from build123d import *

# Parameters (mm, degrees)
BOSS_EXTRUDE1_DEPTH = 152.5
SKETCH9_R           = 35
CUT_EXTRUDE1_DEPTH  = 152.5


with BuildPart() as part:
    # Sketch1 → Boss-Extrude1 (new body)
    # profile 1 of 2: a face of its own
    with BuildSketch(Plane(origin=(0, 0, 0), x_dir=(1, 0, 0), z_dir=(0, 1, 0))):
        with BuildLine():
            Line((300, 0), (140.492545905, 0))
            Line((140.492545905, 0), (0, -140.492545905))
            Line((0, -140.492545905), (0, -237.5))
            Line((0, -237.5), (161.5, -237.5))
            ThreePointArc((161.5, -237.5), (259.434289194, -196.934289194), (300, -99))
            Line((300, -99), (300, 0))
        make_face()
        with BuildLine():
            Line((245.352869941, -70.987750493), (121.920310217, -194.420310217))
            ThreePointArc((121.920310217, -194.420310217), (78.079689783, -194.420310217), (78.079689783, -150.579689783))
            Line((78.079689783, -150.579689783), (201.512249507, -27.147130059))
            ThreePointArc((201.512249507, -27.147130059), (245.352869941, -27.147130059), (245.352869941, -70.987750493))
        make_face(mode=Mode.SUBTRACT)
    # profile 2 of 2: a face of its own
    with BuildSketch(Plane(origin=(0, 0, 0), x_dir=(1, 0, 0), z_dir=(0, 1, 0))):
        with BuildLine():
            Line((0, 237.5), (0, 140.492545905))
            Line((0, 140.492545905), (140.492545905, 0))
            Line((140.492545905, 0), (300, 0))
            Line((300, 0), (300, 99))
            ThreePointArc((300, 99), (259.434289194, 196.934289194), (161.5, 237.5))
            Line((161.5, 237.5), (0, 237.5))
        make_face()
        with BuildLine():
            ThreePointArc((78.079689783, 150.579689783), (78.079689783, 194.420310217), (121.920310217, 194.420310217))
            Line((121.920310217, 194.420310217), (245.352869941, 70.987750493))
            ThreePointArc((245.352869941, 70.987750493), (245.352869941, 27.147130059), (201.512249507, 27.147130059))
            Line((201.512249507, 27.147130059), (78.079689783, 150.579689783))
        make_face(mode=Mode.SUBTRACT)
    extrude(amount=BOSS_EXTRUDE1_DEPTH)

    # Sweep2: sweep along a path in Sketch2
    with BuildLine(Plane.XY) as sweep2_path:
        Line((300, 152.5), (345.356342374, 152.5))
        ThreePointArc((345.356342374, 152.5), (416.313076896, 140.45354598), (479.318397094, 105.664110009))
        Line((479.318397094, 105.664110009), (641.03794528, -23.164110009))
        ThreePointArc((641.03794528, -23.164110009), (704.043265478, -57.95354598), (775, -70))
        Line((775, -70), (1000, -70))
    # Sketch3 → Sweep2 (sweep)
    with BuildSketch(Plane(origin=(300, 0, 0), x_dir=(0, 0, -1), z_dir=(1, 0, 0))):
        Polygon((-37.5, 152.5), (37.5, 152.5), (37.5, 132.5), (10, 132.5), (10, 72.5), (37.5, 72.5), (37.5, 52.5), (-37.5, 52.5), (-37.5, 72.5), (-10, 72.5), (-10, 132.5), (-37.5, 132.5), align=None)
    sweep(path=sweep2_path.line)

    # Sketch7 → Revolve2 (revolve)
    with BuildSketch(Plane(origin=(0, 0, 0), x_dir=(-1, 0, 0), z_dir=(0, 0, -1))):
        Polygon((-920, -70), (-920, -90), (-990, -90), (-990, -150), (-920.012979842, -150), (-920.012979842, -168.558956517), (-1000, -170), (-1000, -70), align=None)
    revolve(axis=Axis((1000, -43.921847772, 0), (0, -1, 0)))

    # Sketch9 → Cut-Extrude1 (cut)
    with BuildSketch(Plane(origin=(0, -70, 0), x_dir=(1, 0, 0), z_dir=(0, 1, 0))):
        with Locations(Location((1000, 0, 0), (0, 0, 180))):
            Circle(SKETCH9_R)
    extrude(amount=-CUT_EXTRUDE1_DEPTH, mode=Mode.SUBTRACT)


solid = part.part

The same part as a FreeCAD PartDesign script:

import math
import FreeCAD as App
import Part
import Sketcher
from FreeCAD import Vector
Q = App.Units.Quantity

doc = App.newDocument("Part")
body = doc.addObject("PartDesign::Body", "Body")

sketch1 = body.newObject("Sketcher::SketchObject", "Sketch")
sketch1.AttachmentSupport = (doc.getObject("XZ_Plane"), [""])
sketch1.MapMode = "FlatFace"
sketch1.addGeometry([
    Part.LineSegment(Vector(300, 99, 0), Vector(300, -99, 0)),
    Part.ArcOfCircle(Part.Circle(Vector(161, -99, 0), Vector(0, 0, 1), 139), math.radians(-90), math.radians(0)),
    Part.LineSegment(Vector(162, -238, 0), Vector(0, -238, 0)),
    Part.LineSegment(Vector(0, -238, 0), Vector(0, -140, 0)),
    Part.LineSegment(Vector(0, -140, 0), Vector(140, 0, 0)),
    Part.LineSegment(Vector(140, 0, 0), Vector(0, 140, 0)),
    Part.LineSegment(Vector(0, 140, 0), Vector(0, 238, 0)),
    Part.LineSegment(Vector(0, 238, 0), Vector(162, 238, 0)),
    Part.ArcOfCircle(Part.Circle(Vector(161, 99, 0), Vector(0, 0, 1), 139), math.radians(0), math.radians(90)),
    Part.ArcOfCircle(Part.Circle(Vector(223, 49, 0), Vector(0, 0, 1), 31), math.radians(-135), math.radians(45)),
    Part.LineSegment(Vector(245, 71, 0), Vector(122, 194, 0)),
    Part.ArcOfCircle(Part.Circle(Vector(100, 172, 0), Vector(0, 0, 1), 31), math.radians(45), math.radians(225)),
    Part.LineSegment(Vector(78, 151, 0), Vector(202, 27, 0)),
    Part.ArcOfCircle(Part.Circle(Vector(100, -172, 0), Vector(0, 0, 1), 31), math.radians(135), math.radians(315)),
    Part.LineSegment(Vector(122, -194, 0), Vector(245, -71, 0)),
    Part.ArcOfCircle(Part.Circle(Vector(223, -49, 0), Vector(0, 0, 1), 31), math.radians(-45), math.radians(135)),
    Part.LineSegment(Vector(202, -27, 0), Vector(78, -151, 0)),
], False)
sketch1.addConstraint([
    Sketcher.Constraint("Tangent", 0, 2, 1, 2),
    Sketcher.Constraint("Tangent", 1, 1, 2, 1),
    Sketcher.Constraint("Coincident", 2, 2, 3, 1),
    Sketcher.Constraint("Coincident", 3, 2, 4, 1),
    Sketcher.Constraint("Coincident", 4, 2, 5, 1),
    Sketcher.Constraint("Coincident", 5, 2, 6, 1),
    Sketcher.Constraint("Coincident", 6, 2, 7, 1),
    Sketcher.Constraint("Tangent", 7, 2, 8, 2),
    Sketcher.Constraint("Tangent", 8, 1, 0, 1),
    Sketcher.Constraint("Tangent", 9, 2, 10, 1),
    Sketcher.Constraint("Tangent", 10, 2, 11, 1),
    Sketcher.Constraint("Tangent", 11, 2, 12, 1),
    Sketcher.Constraint("Tangent", 12, 2, 9, 1),
    Sketcher.Constraint("Tangent", 13, 2, 14, 1),
    Sketcher.Constraint("Tangent", 14, 2, 15, 1),
    Sketcher.Constraint("Tangent", 15, 2, 16, 1),
    Sketcher.Constraint("Tangent", 16, 2, 13, 1),
    Sketcher.Constraint("Vertical", 0),
    Sketcher.Constraint("Horizontal", 2),
    Sketcher.Constraint("Vertical", 3),
    Sketcher.Constraint("Vertical", 6),
    Sketcher.Constraint("Horizontal", 7),
    Sketcher.Constraint("Equal", 1, 8),
    Sketcher.Constraint("Equal", 9, 11),
    Sketcher.Constraint("Equal", 11, 13),
    Sketcher.Constraint("Equal", 13, 15),
    Sketcher.Constraint("Symmetric", 3, 2, 5, 2, -1, 1),
    Sketcher.Constraint("Symmetric", 11, 3, 13, 3, -1),
    Sketcher.Constraint("Symmetric", 9, 3, 15, 3, -1),
    Sketcher.Constraint("Symmetric", 2, 2, 6, 2, -1),
    Sketcher.Constraint("PointOnObject", 4, 2, -1),
    Sketcher.Constraint("Perpendicular", 4, 5),
    Sketcher.Constraint("Parallel", 5, 10),
    Sketcher.Constraint("Radius", 9, Q("31 mm")),
    Sketcher.Constraint("Radius", 1, Q("138.5 mm")),
    Sketcher.Constraint("DistanceY", 0, 2, 0, 1, Q("198 mm")),
    Sketcher.Constraint("DistanceX", 2, 2, 2, 1, Q("161.5 mm")),
    Sketcher.Constraint("DistanceX", -1, 1, 11, 3, Q("100 mm")),
    Sketcher.Constraint("DistanceY", 13, 3, 11, 3, Q("345 mm")),
    Sketcher.Constraint("Distance", 10, Q("174.56 mm")),
    Sketcher.Constraint("DistanceY", 3, 1, 3, 2, Q("97.007454 mm")),
])
pad1 = body.newObject("PartDesign::Pad", "Pad")
pad1.Profile = sketch1
pad1.Length = 152.5
pad1.Reversed = True

sketch2 = body.newObject("Sketcher::SketchObject", "Sketch001")
sketch2.AttachmentSupport = (doc.getObject("YZ_Plane"), [""])
sketch2.MapMode = "FlatFace"
sketch2.AttachmentOffset = App.Placement(Vector(0, 0, 300), App.Rotation())
sketch2.addGeometry([
    Part.LineSegment(Vector(152, -38, 0), Vector(152, 38, 0)),
    Part.LineSegment(Vector(152, 38, 0), Vector(132, 38, 0)),
    Part.LineSegment(Vector(132, 38, 0), Vector(132, 10, 0)),
    Part.LineSegment(Vector(132, 10, 0), Vector(72, 10, 0)),
    Part.LineSegment(Vector(72, 10, 0), Vector(72, 38, 0)),
    Part.LineSegment(Vector(72, 38, 0), Vector(52, 38, 0)),
    Part.LineSegment(Vector(52, 38, 0), Vector(52, -38, 0)),
    Part.LineSegment(Vector(52, -38, 0), Vector(72, -38, 0)),
    Part.LineSegment(Vector(72, -38, 0), Vector(72, -10, 0)),
    Part.LineSegment(Vector(72, -10, 0), Vector(132, -10, 0)),
    Part.LineSegment(Vector(132, -10, 0), Vector(132, -38, 0)),
    Part.LineSegment(Vector(132, -38, 0), Vector(152, -38, 0)),
], False)
sketch2.addConstraint([
    Sketcher.Constraint("Coincident", 0, 2, 1, 1),
    Sketcher.Constraint("Coincident", 1, 2, 2, 1),
    Sketcher.Constraint("Coincident", 2, 2, 3, 1),
    Sketcher.Constraint("Coincident", 3, 2, 4, 1),
    Sketcher.Constraint("Coincident", 4, 2, 5, 1),
    Sketcher.Constraint("Coincident", 5, 2, 6, 1),
    Sketcher.Constraint("Coincident", 6, 2, 7, 1),
    Sketcher.Constraint("Coincident", 7, 2, 8, 1),
    Sketcher.Constraint("Coincident", 8, 2, 9, 1),
    Sketcher.Constraint("Coincident", 9, 2, 10, 1),
    Sketcher.Constraint("Coincident", 10, 2, 11, 1),
    Sketcher.Constraint("Coincident", 11, 2, 0, 1),
    Sketcher.Constraint("Vertical", 0),
    Sketcher.Constraint("Horizontal", 1),
    Sketcher.Constraint("Vertical", 2),
    Sketcher.Constraint("Horizontal", 3),
    Sketcher.Constraint("Vertical", 4),
    Sketcher.Constraint("Horizontal", 5),
    Sketcher.Constraint("Vertical", 6),
    Sketcher.Constraint("Horizontal", 7),
    Sketcher.Constraint("Vertical", 8),
    Sketcher.Constraint("Horizontal", 9),
    Sketcher.Constraint("Vertical", 10),
    Sketcher.Constraint("Horizontal", 11),
    Sketcher.Constraint("Symmetric", 4, 2, 7, 2, -1),
    Sketcher.Constraint("Symmetric", 2, 2, 9, 2, -1),
    Sketcher.Constraint("Horizontal", 1, 2, 4, 2),
    Sketcher.Constraint("Horizontal", 7, 2, 10, 2),
    Sketcher.Constraint("Equal", 1, 5),
    Sketcher.Constraint("DistanceX", 1, 2, 1, 1, Q("20 mm")),
    Sketcher.Constraint("DistanceX", 3, 2, 3, 1, Q("60 mm")),
    Sketcher.Constraint("DistanceY", 0, 1, 0, 2, Q("75 mm")),
    Sketcher.Constraint("DistanceY", 2, 2, 2, 1, Q("27.5 mm")),
    Sketcher.Constraint("DistanceX", -1, 1, 0, 2, Q("152.5 mm")),
])

sketch3 = body.newObject("Sketcher::SketchObject", "Sketch002")
sketch3.AttachmentSupport = (doc.getObject("XY_Plane"), [""])
sketch3.MapMode = "FlatFace"
sketch3.addGeometry([
    Part.LineSegment(Vector(300, 152, 0), Vector(345, 152, 0)),
    Part.ArcOfCircle(Part.Circle(Vector(345, -63, 0), Vector(0, 0, 1), 215), math.radians(51), math.radians(90)),
    Part.LineSegment(Vector(479, 106, 0), Vector(641, -23, 0)),
    Part.ArcOfCircle(Part.Circle(Vector(775, 145, 0), Vector(0, 0, 1), 215), math.radians(-129), math.radians(-90)),
    Part.LineSegment(Vector(775, -70, 0), Vector(1000, -70, 0)),
], False)
sketch3.addConstraint([
    Sketcher.Constraint("Tangent", 0, 2, 1, 2),
    Sketcher.Constraint("Tangent", 1, 1, 2, 1),
    Sketcher.Constraint("Tangent", 2, 2, 3, 1),
    Sketcher.Constraint("Tangent", 3, 2, 4, 1),
    Sketcher.Constraint("Horizontal", 0),
    Sketcher.Constraint("Horizontal", 4),
    Sketcher.Constraint("Equal", 1, 3),
    Sketcher.Constraint("Radius", 1, Q("215 mm")),
    Sketcher.Constraint("DistanceX", 4, 1, 4, 2, Q("225 mm")),
    Sketcher.Constraint("DistanceX", -1, 1, 3, 3, Q("775 mm")),
    Sketcher.Constraint("DistanceY", -1, 1, 3, 3, Q("145 mm")),
    Sketcher.Constraint("DistanceX", -1, 1, 0, 1, Q("300 mm")),
    Sketcher.Constraint("DistanceY", 1, 3, -1, 1, Q("62.5 mm")),
    Sketcher.Constraint("DistanceX", 0, 1, 0, 2, Q("45.356342 mm")),
])
doc.recompute()

additivepipe = body.newObject("PartDesign::AdditivePipe", "AdditivePipe")
additivepipe.Profile = sketch2
additivepipe.Spine = (sketch3, ["Edge1", "Edge2", "Edge3", "Edge4", "Edge5"])

sketch4 = body.newObject("Sketcher::SketchObject", "Sketch003")
sketch4.AttachmentSupport = (doc.getObject("XY_Plane"), [""])
sketch4.MapMode = "FlatFace"
sketch4.addGeometry([
    Part.LineSegment(Vector(920, -90, 0), Vector(920, -70, 0)),
    Part.LineSegment(Vector(920, -70, 0), Vector(1000, -70, 0)),
    Part.LineSegment(Vector(1000, -70, 0), Vector(1000, -170, 0)),
    Part.LineSegment(Vector(1000, -170, 0), Vector(920, -169, 0)),
    Part.LineSegment(Vector(920, -169, 0), Vector(920, -150, 0)),
    Part.LineSegment(Vector(920, -150, 0), Vector(990, -150, 0)),
    Part.LineSegment(Vector(990, -150, 0), Vector(990, -90, 0)),
    Part.LineSegment(Vector(990, -90, 0), Vector(920, -90, 0)),
], False)
sketch4.addGeometry(Part.LineSegment(Vector(1000, -70, 0), Vector(1000, -170, 0)), True)
sketch4.addConstraint([
    Sketcher.Constraint("Coincident", 0, 2, 1, 1),
    Sketcher.Constraint("Coincident", 1, 2, 2, 1),
    Sketcher.Constraint("Coincident", 2, 2, 3, 1),
    Sketcher.Constraint("Coincident", 3, 2, 4, 1),
    Sketcher.Constraint("Coincident", 4, 2, 5, 1),
    Sketcher.Constraint("Coincident", 5, 2, 6, 1),
    Sketcher.Constraint("Coincident", 6, 2, 7, 1),
    Sketcher.Constraint("Coincident", 7, 2, 0, 1),
    Sketcher.Constraint("Vertical", 0),
    Sketcher.Constraint("Horizontal", 1),
    Sketcher.Constraint("Vertical", 2),
    Sketcher.Constraint("Vertical", 4),
    Sketcher.Constraint("Horizontal", 5),
    Sketcher.Constraint("Vertical", 6),
    Sketcher.Constraint("Horizontal", 7),
    Sketcher.Constraint("Vertical", 8),
    Sketcher.Constraint("Coincident", 8, 1, 1, 2),
    Sketcher.Constraint("Equal", 2, 8),
    Sketcher.Constraint("DistanceX", 1, 1, 1, 2, Q("80 mm")),
    Sketcher.Constraint("DistanceX", 7, 2, 7, 1, Q("70 mm")),
    Sketcher.Constraint("DistanceY", 0, 1, 0, 2, Q("20 mm")),
    Sketcher.Constraint("DistanceY", 2, 2, 2, 1, Q("100 mm")),
    Sketcher.Constraint("DistanceY", 6, 1, 6, 2, Q("60 mm")),
    Sketcher.Constraint("Distance", 3, Q("80 mm")),
    Sketcher.Constraint("DistanceX", -1, 1, 0, 2, Q("920 mm")),
    Sketcher.Constraint("DistanceY", 0, 2, -1, 1, Q("70 mm")),
    Sketcher.Constraint("DistanceX", 5, 1, 5, 2, Q("69.98702 mm")),
])
revolution = body.newObject("PartDesign::Revolution", "Revolution")
revolution.Profile = sketch4
revolution.ReferenceAxis = (sketch4, ["Axis0"])
revolution.Angle = 360

sketch5 = body.newObject("Sketcher::SketchObject", "Sketch004")
sketch5.AttachmentSupport = (doc.getObject("XZ_Plane"), [""])
sketch5.MapMode = "FlatFace"
sketch5.AttachmentOffset = App.Placement(Vector(0, 0, 70), App.Rotation())
sketch5.addGeometry(Part.Circle(Vector(1000, 0, 0), Vector(0, 0, 1), 35), False)
sketch5.addConstraint([
    Sketcher.Constraint("PointOnObject", 0, 3, -1),
    Sketcher.Constraint("Diameter", 0, Q("70 mm")),
    Sketcher.Constraint("DistanceX", -1, 1, 0, 3, Q("1000 mm")),
])
pocket1 = body.newObject("PartDesign::Pocket", "Pocket")
pocket1.Profile = sketch5
pocket1.Length = 152.5
pocket1.Reversed = True

doc.recompute()
